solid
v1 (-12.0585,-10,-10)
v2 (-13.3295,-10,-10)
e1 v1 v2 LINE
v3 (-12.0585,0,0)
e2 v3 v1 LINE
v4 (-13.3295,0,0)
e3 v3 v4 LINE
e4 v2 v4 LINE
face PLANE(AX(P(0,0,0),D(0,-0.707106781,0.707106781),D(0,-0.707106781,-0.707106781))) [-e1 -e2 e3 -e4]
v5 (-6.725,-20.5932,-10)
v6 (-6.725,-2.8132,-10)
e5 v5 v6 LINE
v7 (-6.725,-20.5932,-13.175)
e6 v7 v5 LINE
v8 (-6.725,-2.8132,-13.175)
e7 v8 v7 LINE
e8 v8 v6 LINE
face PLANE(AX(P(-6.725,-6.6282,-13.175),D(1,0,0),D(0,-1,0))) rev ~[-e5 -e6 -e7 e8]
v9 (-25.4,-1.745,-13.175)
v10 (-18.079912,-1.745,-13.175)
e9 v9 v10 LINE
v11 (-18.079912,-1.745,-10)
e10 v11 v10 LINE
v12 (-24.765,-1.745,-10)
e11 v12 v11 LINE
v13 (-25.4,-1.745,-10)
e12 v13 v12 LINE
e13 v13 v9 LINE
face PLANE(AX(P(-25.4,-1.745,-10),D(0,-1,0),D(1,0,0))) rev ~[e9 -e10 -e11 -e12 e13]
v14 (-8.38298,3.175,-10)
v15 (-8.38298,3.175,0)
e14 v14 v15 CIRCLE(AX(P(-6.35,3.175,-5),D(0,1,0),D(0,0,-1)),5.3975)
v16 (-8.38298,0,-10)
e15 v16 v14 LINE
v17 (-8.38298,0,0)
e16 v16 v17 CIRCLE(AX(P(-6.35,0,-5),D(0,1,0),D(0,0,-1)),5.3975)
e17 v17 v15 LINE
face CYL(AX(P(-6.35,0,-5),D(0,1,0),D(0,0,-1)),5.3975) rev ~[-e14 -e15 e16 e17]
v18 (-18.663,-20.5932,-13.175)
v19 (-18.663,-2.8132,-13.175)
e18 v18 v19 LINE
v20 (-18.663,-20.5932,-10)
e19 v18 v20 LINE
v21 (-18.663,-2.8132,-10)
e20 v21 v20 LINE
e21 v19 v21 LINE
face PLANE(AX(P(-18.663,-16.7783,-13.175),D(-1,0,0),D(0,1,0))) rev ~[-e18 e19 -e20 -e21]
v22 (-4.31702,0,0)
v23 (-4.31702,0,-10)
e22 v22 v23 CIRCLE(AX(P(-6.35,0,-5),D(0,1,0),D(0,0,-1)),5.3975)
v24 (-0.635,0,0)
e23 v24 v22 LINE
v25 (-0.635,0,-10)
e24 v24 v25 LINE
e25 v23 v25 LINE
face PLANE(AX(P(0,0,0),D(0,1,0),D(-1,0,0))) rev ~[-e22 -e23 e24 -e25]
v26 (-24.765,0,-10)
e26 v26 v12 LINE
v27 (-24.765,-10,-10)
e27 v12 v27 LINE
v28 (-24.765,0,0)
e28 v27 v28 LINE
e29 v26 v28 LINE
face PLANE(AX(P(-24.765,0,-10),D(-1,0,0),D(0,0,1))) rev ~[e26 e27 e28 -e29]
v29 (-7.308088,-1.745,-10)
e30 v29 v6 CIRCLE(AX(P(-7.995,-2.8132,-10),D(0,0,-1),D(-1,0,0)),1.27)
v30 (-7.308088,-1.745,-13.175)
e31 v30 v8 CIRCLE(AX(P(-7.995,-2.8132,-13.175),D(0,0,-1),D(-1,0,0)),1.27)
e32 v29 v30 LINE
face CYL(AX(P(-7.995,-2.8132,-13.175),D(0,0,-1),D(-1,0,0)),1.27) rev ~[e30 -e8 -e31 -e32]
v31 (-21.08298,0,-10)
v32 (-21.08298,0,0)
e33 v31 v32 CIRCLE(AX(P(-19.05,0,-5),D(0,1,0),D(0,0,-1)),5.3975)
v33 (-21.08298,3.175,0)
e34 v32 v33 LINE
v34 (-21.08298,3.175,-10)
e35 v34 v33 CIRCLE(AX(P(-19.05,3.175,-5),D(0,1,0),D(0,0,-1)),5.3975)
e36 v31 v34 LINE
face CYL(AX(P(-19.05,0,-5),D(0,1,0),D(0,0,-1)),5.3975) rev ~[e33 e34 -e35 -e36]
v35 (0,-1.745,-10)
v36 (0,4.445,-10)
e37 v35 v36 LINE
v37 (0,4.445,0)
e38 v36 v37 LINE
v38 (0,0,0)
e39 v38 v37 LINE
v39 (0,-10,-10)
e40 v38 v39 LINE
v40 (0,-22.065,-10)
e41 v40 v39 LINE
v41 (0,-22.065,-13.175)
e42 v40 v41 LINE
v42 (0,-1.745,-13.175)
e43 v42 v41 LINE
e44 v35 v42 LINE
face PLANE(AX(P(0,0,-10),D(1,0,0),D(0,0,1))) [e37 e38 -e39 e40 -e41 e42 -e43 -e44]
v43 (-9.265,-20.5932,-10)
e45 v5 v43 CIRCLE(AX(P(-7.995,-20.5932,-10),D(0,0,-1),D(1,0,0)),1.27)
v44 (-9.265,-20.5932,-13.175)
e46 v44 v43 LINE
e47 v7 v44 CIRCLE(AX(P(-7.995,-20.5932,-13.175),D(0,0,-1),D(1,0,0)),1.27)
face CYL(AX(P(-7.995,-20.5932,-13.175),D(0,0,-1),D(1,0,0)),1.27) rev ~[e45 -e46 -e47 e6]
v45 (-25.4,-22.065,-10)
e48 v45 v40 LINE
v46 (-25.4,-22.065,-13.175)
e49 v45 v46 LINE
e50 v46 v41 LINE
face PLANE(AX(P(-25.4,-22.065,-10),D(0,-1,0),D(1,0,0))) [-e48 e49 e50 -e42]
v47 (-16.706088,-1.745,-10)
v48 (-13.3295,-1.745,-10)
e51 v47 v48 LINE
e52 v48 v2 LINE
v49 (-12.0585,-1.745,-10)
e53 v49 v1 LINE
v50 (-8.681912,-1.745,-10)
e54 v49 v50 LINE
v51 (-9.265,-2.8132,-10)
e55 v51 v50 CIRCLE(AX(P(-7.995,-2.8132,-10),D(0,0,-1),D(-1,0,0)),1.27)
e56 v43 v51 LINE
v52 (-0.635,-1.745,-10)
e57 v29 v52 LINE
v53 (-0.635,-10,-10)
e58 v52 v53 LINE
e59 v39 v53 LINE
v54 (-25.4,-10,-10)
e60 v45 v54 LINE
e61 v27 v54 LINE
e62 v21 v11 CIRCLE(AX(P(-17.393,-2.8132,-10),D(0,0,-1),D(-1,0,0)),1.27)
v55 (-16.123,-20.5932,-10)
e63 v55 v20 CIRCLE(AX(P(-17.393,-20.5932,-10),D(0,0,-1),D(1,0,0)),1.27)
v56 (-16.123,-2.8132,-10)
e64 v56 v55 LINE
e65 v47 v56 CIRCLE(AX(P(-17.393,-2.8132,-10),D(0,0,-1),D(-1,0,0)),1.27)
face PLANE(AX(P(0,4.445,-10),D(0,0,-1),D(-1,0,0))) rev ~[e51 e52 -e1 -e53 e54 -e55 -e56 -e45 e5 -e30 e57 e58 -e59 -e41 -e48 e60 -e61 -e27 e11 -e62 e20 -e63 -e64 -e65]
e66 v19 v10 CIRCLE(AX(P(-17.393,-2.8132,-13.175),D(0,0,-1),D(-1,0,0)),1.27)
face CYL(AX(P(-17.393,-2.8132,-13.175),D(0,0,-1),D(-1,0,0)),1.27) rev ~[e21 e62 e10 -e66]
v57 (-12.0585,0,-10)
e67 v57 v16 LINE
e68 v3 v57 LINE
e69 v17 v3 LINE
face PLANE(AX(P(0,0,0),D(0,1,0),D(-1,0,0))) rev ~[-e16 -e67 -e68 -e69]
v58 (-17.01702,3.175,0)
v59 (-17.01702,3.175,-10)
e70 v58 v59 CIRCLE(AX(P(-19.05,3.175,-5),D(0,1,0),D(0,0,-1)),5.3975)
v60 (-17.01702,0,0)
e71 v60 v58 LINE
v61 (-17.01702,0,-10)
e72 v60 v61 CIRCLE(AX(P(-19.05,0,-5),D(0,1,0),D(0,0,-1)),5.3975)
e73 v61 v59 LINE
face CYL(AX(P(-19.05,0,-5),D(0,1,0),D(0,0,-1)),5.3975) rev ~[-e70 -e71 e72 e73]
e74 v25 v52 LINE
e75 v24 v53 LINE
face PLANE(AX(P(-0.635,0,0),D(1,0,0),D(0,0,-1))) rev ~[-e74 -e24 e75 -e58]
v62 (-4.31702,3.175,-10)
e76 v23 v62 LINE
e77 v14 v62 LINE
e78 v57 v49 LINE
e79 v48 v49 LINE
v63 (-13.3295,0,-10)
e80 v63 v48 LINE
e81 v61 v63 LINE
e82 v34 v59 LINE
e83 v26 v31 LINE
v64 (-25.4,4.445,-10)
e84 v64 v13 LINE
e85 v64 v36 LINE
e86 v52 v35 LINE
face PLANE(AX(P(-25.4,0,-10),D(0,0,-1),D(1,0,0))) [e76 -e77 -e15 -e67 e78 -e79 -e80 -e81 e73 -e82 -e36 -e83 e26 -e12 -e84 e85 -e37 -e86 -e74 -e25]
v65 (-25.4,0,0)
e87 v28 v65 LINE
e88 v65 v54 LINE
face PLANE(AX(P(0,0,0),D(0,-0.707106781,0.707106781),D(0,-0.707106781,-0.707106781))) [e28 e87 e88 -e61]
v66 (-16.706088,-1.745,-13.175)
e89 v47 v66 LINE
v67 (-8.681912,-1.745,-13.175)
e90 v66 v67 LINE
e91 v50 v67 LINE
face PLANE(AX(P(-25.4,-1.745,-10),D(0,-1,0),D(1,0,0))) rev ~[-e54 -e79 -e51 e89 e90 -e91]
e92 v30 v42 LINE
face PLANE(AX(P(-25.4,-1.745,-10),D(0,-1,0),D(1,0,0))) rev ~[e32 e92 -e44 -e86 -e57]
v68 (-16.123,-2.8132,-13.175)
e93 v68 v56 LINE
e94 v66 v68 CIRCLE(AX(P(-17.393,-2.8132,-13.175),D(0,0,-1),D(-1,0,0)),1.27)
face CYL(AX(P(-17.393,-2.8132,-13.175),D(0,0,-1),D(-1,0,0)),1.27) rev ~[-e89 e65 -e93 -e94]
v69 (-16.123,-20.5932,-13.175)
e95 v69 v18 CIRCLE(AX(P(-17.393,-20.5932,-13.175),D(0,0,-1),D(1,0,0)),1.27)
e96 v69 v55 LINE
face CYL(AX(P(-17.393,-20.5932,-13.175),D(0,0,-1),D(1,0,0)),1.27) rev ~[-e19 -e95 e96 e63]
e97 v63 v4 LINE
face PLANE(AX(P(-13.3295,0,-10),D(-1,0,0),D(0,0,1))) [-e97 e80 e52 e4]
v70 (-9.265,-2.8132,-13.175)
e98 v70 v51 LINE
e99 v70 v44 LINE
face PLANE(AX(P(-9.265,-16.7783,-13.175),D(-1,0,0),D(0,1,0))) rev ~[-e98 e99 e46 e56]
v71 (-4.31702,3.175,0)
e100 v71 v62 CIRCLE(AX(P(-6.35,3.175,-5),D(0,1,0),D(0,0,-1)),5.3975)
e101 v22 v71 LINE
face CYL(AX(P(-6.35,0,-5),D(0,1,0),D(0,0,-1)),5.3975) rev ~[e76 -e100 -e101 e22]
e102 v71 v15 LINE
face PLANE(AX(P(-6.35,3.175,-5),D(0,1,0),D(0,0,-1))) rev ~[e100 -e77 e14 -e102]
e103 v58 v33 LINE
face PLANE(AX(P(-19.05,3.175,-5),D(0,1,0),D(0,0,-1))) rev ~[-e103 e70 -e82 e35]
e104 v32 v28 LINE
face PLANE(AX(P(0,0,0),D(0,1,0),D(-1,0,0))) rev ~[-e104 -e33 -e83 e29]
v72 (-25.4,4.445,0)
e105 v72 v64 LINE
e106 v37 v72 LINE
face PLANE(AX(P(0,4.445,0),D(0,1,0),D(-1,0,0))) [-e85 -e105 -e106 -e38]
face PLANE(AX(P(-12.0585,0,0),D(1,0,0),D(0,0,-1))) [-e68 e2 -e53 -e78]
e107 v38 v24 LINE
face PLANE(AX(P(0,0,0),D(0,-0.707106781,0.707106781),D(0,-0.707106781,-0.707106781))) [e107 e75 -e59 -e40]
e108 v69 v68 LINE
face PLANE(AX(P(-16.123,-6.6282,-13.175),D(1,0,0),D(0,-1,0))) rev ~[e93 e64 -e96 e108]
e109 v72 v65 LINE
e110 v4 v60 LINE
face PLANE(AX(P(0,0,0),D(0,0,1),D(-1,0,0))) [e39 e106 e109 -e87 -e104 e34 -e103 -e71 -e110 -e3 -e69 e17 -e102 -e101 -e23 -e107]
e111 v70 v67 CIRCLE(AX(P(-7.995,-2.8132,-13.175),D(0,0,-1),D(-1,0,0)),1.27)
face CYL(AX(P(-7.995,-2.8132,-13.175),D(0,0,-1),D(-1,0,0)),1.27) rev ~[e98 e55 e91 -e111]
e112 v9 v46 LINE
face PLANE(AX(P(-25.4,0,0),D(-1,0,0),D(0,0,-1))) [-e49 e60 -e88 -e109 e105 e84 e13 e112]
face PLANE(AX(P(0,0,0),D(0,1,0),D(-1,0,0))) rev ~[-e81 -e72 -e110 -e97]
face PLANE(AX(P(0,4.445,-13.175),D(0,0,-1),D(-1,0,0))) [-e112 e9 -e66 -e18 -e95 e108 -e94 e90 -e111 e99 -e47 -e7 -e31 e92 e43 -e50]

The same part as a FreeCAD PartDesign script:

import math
import FreeCAD as App
import Part
import Sketcher

V = App.Vector
Q = App.Units.Quantity


def add_polygon(sketch, points):
    """Adds a closed chain of lines whose ends are joined by coincident constraints."""
    first, n = sketch.GeometryCount, len(points)
    for a, b in zip(points, points[1:] + points[:1]):
        sketch.addGeometry(Part.LineSegment(App.Vector(*a, 0), App.Vector(*b, 0)), False)
    for i in range(n):
        sketch.addConstraint(Sketcher.Constraint("Coincident", first + i, 2, first + (i + 1) % n, 1))

doc = App.newDocument("Part")
params = doc.addObject("Spreadsheet::Sheet", "Params")
for row, (alias, value) in enumerate([
    ("sketch1_width", "1 in"),
    ("pad1_length", "0.175 in"),
    ("sketch2_diameter", "0.425 in"),
    ("hole_diameter", "0.425 in"),
    ("hole_depth", "0.125 in"),
    ("sketch3_width", "0.025 in"),
    ("pad2_length", "1 in"),
    ("sketch4_width", "1 in"),
    ("pocket1_length", "1 in"),
    ("sketch5_height", "0.8 in"),
    ("sketch5_width", "1 in"),
    ("pad3_length", "0.125 in"),
    ("sketch6_radius", "0.05 in"),
    ("sketch6_height", "0.7 in"),
    ("pocket2_length", "0.125 in"),
], start=1):
    params.set(f"A{row}", alias)
    params.set(f"B{row}", "=" + value)
    params.setAlias(f"B{row}", alias)

body = doc.addObject("PartDesign::Body", "Body")

# Sketch on XZ plane
sketch1 = body.newObject("Sketcher::SketchObject", "Sketch")
sketch1.AttachmentSupport = (doc.getObject("XZ_Plane"), [""])
sketch1.MapMode = "FlatFace"
add_polygon(sketch1, [(-25, 0), (0, 0), (0, -10), (-25, -10)])  # lines 0-3
sketch1.addConstraint([
    Sketcher.Constraint("Horizontal", 0),
    Sketcher.Constraint("Vertical", 1),
    Sketcher.Constraint("Horizontal", 2),
    Sketcher.Constraint("Vertical", 3),
    Sketcher.Constraint("Coincident", 0, 2, -1, 1),
    Sketcher.Constraint("DistanceX", 0, 1, 0, 2, Q("1 in")),
    Sketcher.Constraint("DistanceY", 1, 2, 1, 1, Q("0.3937 in")),
])
sketch1.setExpression("Constraints[9]", "Params.sketch1_width")
pad1 = body.newObject("PartDesign::Pad", "Pad")
pad1.Profile = sketch1
pad1.setExpression("Length", "Params.pad1_length")
pad1.Reversed = True

# Sketch on XZ plane
sketch2 = body.newObject("Sketcher::SketchObject", "Sketch001")
sketch2.AttachmentSupport = (doc.getObject("XZ_Plane"), [""])
sketch2.MapMode = "FlatFace"
sketch2.addGeometry([
    Part.Circle(V(-6, -5, 0), V(0, 0, 1), 5),
    Part.Circle(V(-19, -5, 0), V(0, 0, 1), 5),
], False)
sketch2.addConstraint([
    Sketcher.Constraint("Equal", 0, 1),
    Sketcher.Constraint("Horizontal", 0, 3, 1, 3),
    Sketcher.Constraint("Diameter", 0, Q("0.425 in")),
    Sketcher.Constraint("DistanceX", 1, 3, 0, 3, Q("0.5 in")),
    Sketcher.Constraint("DistanceX", 0, 3, -1, 1, Q("0.25 in")),
    Sketcher.Constraint("DistanceY", 0, 3, -1, 1, 5.0),
])
sketch2.setExpression("Constraints[2]", "Params.sketch2_diameter")
doc.recompute()
hole = body.newObject("PartDesign::Hole", "Hole")
hole.Profile = sketch2
hole.ThreadType = "None"
hole.setExpression("Diameter", "Params.hole_diameter")
hole.DepthType = "Dimension"
hole.setExpression("Depth", "Params.hole_depth")
hole.DrillPoint = "Flat"

# Sketch on XZ plane
sketch3 = body.newObject("Sketcher::SketchObject", "Sketch002")
sketch3.AttachmentSupport = (doc.getObject("XZ_Plane"), [""])
sketch3.MapMode = "FlatFace"
add_polygon(sketch3, [(-24.8, 0), (-25.4, 0), (-25.4, -10), (-24.8, -10)])  # lines 0-3
add_polygon(sketch3, [(-13.3, 0), (-13.3, -10), (-12.1, -10), (-12.1, 0)])  # lines 4-7
add_polygon(sketch3, [(-0.6, 0), (-0.6, -10), (0, -10), (0, 0)])  # lines 8-11
sketch3.addConstraint([
    Sketcher.Constraint("Horizontal", 0),
    Sketcher.Constraint("Vertical", 1),
    Sketcher.Constraint("Horizontal", 2),
    Sketcher.Constraint("Vertical", 3),
    Sketcher.Constraint("Vertical", 4),
    Sketcher.Constraint("Horizontal", 5),
    Sketcher.Constraint("Vertical", 6),
    Sketcher.Constraint("Horizontal", 7),
    Sketcher.Constraint("Vertical", 8),
    Sketcher.Constraint("Horizontal", 9),
    Sketcher.Constraint("Vertical", 10),
    Sketcher.Constraint("Horizontal", 11),
    Sketcher.Constraint("Coincident", 10, 2, -1, 1),
    Sketcher.Constraint("PointOnObject", 0, 2, -1),
    Sketcher.Constraint("PointOnObject", 6, 2, -1),
    Sketcher.Constraint("Horizontal", 2, 2, 4, 2),
    Sketcher.Constraint("Horizontal", 5, 2, 8, 2),
    Sketcher.Constraint("Equal", 2, 9),
    Sketcher.Constraint("DistanceX", 0, 2, 0, 1, Q("0.025 in")),
    Sketcher.Constraint("DistanceX", 0, 2, -1, 1, Q("1 in")),
    Sketcher.Constraint("DistanceY", 1, 2, 1, 1, Q("0.3937 in")),
    Sketcher.Constraint("DistanceX", 5, 1, 5, 2, 1.271),
    Sketcher.Constraint("DistanceX", 4, 2, -1, 1, 13.3295),
])
sketch3.setExpression("Constraints[30]", "Params.sketch3_width")
pad2 = body.newObject("PartDesign::Pad", "Pad001")
pad2.Profile = sketch3
pad2.setExpression("Length", "Params.pad2_length")

# Sketch on YZ plane
sketch4 = body.newObject("Sketcher::SketchObject", "Sketch003")
sketch4.AttachmentSupport = (doc.getObject("YZ_Plane"), [""])
sketch4.MapMode = "FlatFace"
add_polygon(sketch4, [(-10, -10), (0, 0), (-25, 0), (-25, -10)])  # lines 0-3
sketch4.addConstraint([
    Sketcher.Constraint("Horizontal", 1),
    Sketcher.Constraint("Vertical", 2),
    Sketcher.Constraint("Horizontal", 3),
    Sketcher.Constraint("Coincident", 0, 2, -1, 1),
    Sketcher.Constraint("Angle", 0, Q("45 deg")),
    Sketcher.Constraint("DistanceX", 1, 2, 1, 1, Q("1 in")),
    Sketcher.Constraint("DistanceX", 3, 1, 3, 2, Q("0.6063 in")),
])
sketch4.setExpression("Constraints[9]", "Params.sketch4_width")
pocket1 = body.newObject("PartDesign::Pocket", "Pocket")
pocket1.Profile = sketch4
pocket1.setExpression("Length", "Params.pocket1_length")

# Sketch on XY plane
sketch5 = body.newObject("Sketcher::SketchObject", "Sketch004")
sketch5.AttachmentSupport = (doc.getObject("XY_Plane"), [""])
sketch5.MapMode = "FlatFace"
sketch5.AttachmentOffset = App.Placement(V(0, 0, -0.3937008 * 25.4), App.Rotation())
add_polygon(sketch5, [(-25, -2), (0, -2), (0, -22), (-25, -22)])  # lines 0-3
sketch5.addConstraint([
    Sketcher.Constraint("Horizontal", 0),
    Sketcher.Constraint("Vertical", 1),
    Sketcher.Constraint("Horizontal", 2),
    Sketcher.Constraint("Vertical", 3),
    Sketcher.Constraint("PointOnObject", 0, 2, -2),
    Sketcher.Constraint("DistanceY", 1, 2, 1, 1, Q("0.8 in")),
    Sketcher.Constraint("DistanceX", 0, 1, 0, 2, Q("1 in")),
    Sketcher.Constraint("DistanceY", 0, 2, -1, 1, Q("0.0687 in")),
])
sketch5.setExpression("Constraints[9]", "Params.sketch5_height")
sketch5.setExpression("Constraints[10]", "Params.sketch5_width")
pad3 = body.newObject("PartDesign::Pad", "Pad002")
pad3.Profile = sketch5
pad3.setExpression("Length", "Params.pad3_length")
pad3.Reversed = True

# Sketch on XY plane
sketch6 = body.newObject("Sketcher::SketchObject", "Sketch005")
sketch6.AttachmentSupport = (doc.getObject("XY_Plane"), [""])
sketch6.MapMode = "FlatFace"
sketch6.AttachmentOffset = App.Placement(V(0, 0, -0.5187008 * 25.4), App.Rotation())
sketch6.addGeometry([
    Part.ArcOfCircle(Part.Circle(V(-8, -2.8, 0), V(0, 0, 1), 1.3), math.radians(0), math.radians(180)),  # 0
    Part.LineSegment(V(-6.7, -2.8, 0), V(-6.7, -20.6, 0)),  # 1
    Part.ArcOfCircle(Part.Circle(V(-8, -20.6, 0), V(0, 0, 1), 1.3), math.radians(180), math.radians(360)),  # 2
    Part.LineSegment(V(-9.3, -20.6, 0), V(-9.3, -2.8, 0)),  # 3
    Part.ArcOfCircle(Part.Circle(V(-17.4, -20.6, 0), V(0, 0, 1), 1.3), math.radians(180), math.radians(360)),  # 4
    Part.LineSegment(V(-18.7, -20.6, 0), V(-18.7, -2.8, 0)),  # 5
    Part.ArcOfCircle(Part.Circle(V(-17.4, -2.8, 0), V(0, 0, 1), 1.3), math.radians(0), math.radians(180)),  # 6
    Part.LineSegment(V(-16.1, -2.8, 0), V(-16.1, -20.6, 0)),  # 7
], False)
sketch6.addConstraint([
    Sketcher.Constraint("Tangent", 0, 1, 1, 1),
    Sketcher.Constraint("Tangent", 1, 2, 2, 2),
    Sketcher.Constraint("Tangent", 2, 1, 3, 1),
    Sketcher.Constraint("Tangent", 3, 2, 0, 2),
    Sketcher.Constraint("Tangent", 4, 1, 5, 1),
    Sketcher.Constraint("Tangent", 5, 2, 6, 2),
    Sketcher.Constraint("Tangent", 6, 1, 7, 1),
    Sketcher.Constraint("Tangent", 7, 2, 4, 2),
    Sketcher.Constraint("Vertical", 1),
    Sketcher.Constraint("Vertical", 3),
    Sketcher.Constraint("Vertical", 5),
    Sketcher.Constraint("Vertical", 7),
    Sketcher.Constraint("Equal", 2, 4),
    Sketcher.Constraint("Horizontal", 2, 3, 4, 3),
    Sketcher.Constraint("Horizontal", 0, 3, 6, 3),
    Sketcher.Constraint("Radius", 0, Q("0.05 in")),
    Sketcher.Constraint("DistanceX", 4, 3, 2, 3, Q("0.37 in")),
    Sketcher.Constraint("DistanceY", 1, 2, 1, 1, Q("0.7 in")),
    Sketcher.Constraint("DistanceX", 0, 3, -1, 1, 7.995),
    Sketcher.Constraint("DistanceY", 0, 3, -1, 1, 2.8132),
])
sketch6.setExpression("Constraints[15]", "Params.sketch6_radius")
sketch6.setExpression("Constraints[17]", "Params.sketch6_height")
pocket2 = body.newObject("PartDesign::Pocket", "Pocket001")
pocket2.Profile = sketch6
pocket2.setExpression("Length", "Params.pocket2_length")
pocket2.Reversed = True

doc.recompute()
